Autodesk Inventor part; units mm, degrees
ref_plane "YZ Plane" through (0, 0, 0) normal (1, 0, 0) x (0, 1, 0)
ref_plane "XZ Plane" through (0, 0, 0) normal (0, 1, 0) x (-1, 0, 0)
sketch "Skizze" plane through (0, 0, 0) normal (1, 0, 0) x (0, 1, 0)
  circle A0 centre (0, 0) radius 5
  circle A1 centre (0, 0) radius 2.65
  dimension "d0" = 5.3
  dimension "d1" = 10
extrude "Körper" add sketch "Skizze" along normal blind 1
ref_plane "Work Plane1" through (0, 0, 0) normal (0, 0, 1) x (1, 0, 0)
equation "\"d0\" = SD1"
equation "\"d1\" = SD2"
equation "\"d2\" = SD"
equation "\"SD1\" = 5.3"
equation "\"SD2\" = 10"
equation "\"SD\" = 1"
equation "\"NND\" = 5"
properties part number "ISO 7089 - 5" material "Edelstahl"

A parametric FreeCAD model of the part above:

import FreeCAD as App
import Part
import Sketcher

doc = App.newDocument("Part")
body = doc.addObject("PartDesign::Body", "Body")

# Sketch on YZ plane
sketch1 = doc.addObject("Sketcher::SketchObject", "Sketch")
body.addObject(sketch1)
sketch1.AttachmentSupport = (doc.YZ_Plane, [""])
sketch1.MapMode = "FlatFace"
sketch1.addGeometry(Part.Circle(App.Vector(0, 0, 0), App.Vector(0, 0, 1), 5), False)
sketch1.addGeometry(Part.Circle(App.Vector(0, 0, 0), App.Vector(0, 0, 1), 2.65), False)
sketch1.addConstraint(Sketcher.Constraint("Coincident", 0, 3, -1, 1))
sketch1.addConstraint(Sketcher.Constraint("Coincident", 1, 3, -1, 1))
sketch1.addConstraint(Sketcher.Constraint("Diameter", 0, 10.0))
sketch1.addConstraint(Sketcher.Constraint("Diameter", 1, 5.3))
pad1 = doc.addObject("PartDesign::Pad", "Pad")
body.addObject(pad1)
pad1.Profile = sketch1
pad1.Length = 1

doc.recompute()
